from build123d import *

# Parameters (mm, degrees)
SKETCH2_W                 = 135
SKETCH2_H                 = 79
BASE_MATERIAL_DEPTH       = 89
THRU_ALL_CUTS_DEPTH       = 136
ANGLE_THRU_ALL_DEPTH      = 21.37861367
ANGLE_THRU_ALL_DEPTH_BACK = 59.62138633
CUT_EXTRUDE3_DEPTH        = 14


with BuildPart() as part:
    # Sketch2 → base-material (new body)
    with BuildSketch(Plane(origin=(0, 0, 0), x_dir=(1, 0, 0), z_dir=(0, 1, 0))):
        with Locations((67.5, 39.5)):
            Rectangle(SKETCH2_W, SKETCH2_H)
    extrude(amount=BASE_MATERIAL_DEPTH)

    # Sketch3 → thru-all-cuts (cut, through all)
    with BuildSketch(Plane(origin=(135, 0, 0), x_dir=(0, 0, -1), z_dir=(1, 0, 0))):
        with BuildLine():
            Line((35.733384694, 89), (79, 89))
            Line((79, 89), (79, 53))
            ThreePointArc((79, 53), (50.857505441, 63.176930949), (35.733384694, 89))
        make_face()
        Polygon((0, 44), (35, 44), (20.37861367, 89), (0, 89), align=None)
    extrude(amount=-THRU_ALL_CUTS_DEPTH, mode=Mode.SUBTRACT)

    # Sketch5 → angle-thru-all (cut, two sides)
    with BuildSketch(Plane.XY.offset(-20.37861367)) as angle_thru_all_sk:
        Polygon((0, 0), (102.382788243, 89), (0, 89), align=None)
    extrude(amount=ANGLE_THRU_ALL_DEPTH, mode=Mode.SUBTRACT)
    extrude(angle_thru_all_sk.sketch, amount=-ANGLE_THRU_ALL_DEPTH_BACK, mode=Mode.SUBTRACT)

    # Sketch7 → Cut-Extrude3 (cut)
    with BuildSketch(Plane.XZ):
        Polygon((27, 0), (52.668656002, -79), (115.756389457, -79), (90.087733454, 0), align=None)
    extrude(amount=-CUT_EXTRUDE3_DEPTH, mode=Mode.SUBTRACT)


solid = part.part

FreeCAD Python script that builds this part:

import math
import FreeCAD as App
import Part
import Sketcher
Q = App.Units.Quantity


def add_polygon(sketch, points):
    """Adds a closed chain of lines whose ends are joined by coincident constraints."""
    first, n = sketch.GeometryCount, len(points)
    for a, b in zip(points, points[1:] + points[:1]):
        sketch.addGeometry(Part.LineSegment(App.Vector(*a, 0), App.Vector(*b, 0)), False)
    for i in range(n):
        sketch.addConstraint(Sketcher.Constraint("Coincident", first + i, 2, first + (i + 1) % n, 1))

doc = App.newDocument("Part")
body = doc.addObject("PartDesign::Body", "Body")

# Sketch on XZ plane
sketch1 = body.newObject("Sketcher::SketchObject", "Sketch")
sketch1.AttachmentSupport = (doc.getObject("XZ_Plane"), [""])
sketch1.MapMode = "FlatFace"
add_polygon(sketch1, [(0, -79), (0, 0), (135, 0), (135, -79)])  # lines 0-3
sketch1.addConstraint([
    Sketcher.Constraint("Vertical", 0),
    Sketcher.Constraint("Horizontal", 1),
    Sketcher.Constraint("Vertical", 2),
    Sketcher.Constraint("Horizontal", 3),
    Sketcher.Constraint("Coincident", 0, 2, -1, 1),
    Sketcher.Constraint("DistanceX", 1, 1, 1, 2, Q("135 mm")),
    Sketcher.Constraint("DistanceY", 0, 1, 0, 2, Q("79 mm")),
])
pad1 = body.newObject("PartDesign::Pad", "Pad")
pad1.Profile = sketch1
pad1.Length = 89
pad1.Reversed = True

# Sketch on YZ plane
sketch2 = body.newObject("Sketcher::SketchObject", "Sketch001")
sketch2.AttachmentSupport = (doc.getObject("YZ_Plane"), [""])
sketch2.MapMode = "FlatFace"
sketch2.AttachmentOffset = App.Placement(App.Vector(0, 0, 135), App.Rotation())
sketch2.addGeometry(Part.LineSegment(App.Vector(89, -79, 0), App.Vector(89, -35.733385, 0)), False)  # 0
sketch2.addGeometry(Part.ArcOfCircle(Part.Circle(App.Vector(97, -79, 0), App.Vector(0, 0, 1), 44), math.radians(100.475682), math.radians(180)), False)  # 1
sketch2.addGeometry(Part.LineSegment(App.Vector(53, -79, 0), App.Vector(89, -79, 0)), False)  # 2
add_polygon(sketch2, [(44, 0), (44, -35), (89, -20.378614), (89, 0)])  # lines 3-6
sketch2.addConstraint([
    Sketcher.Constraint("Coincident", 0, 2, 1, 1),
    Sketcher.Constraint("Coincident", 1, 2, 2, 1),
    Sketcher.Constraint("Coincident", 2, 2, 0, 1),
    Sketcher.Constraint("Vertical", 0),
    Sketcher.Constraint("Horizontal", 2),
    Sketcher.Constraint("Vertical", 3),
    Sketcher.Constraint("Vertical", 5),
    Sketcher.Constraint("Horizontal", 6),
    Sketcher.Constraint("PointOnObject", 5, 2, -1),
    Sketcher.Constraint("Vertical", 2, 2, 4, 2),
    Sketcher.Constraint("Radius", 1, Q("44 mm")),
    Sketcher.Constraint("DistanceX", 2, 1, 2, 2, Q("36 mm")),
    Sketcher.Constraint("DistanceX", 6, 2, 6, 1, Q("45 mm")),
    Sketcher.Constraint("DistanceY", 3, 2, 3, 1, Q("35 mm")),
    Sketcher.Constraint("Angle", 4, Q("18 deg")),
    Sketcher.Constraint("DistanceX", -1, 1, 1, 3, Q("97 mm")),
    Sketcher.Constraint("DistanceY", 1, 3, -1, 1, Q("79 mm")),
    Sketcher.Constraint("DistanceY", 1, 2, -1, 1, Q("79 mm")),
])
pocket1 = body.newObject("PartDesign::Pocket", "Pocket")
pocket1.Profile = sketch2
pocket1.Type = "ThroughAll"

# Sketch on XY plane
sketch3 = body.newObject("Sketcher::SketchObject", "Sketch002")
sketch3.AttachmentSupport = (doc.getObject("XY_Plane"), [""])
sketch3.MapMode = "FlatFace"
sketch3.AttachmentOffset = App.Placement(App.Vector(0, 0, -20.378614), App.Rotation())
add_polygon(sketch3, [(0, 0), (102.382788, 89), (0, 89)])  # lines 0-2
sketch3.addConstraint([
    Sketcher.Constraint("Horizontal", 1),
    Sketcher.Constraint("Vertical", 2),
    Sketcher.Constraint("Coincident", 2, 2, -1, 1),
    Sketcher.Constraint("DistanceY", 2, 2, 2, 1, Q("89 mm")),
    Sketcher.Constraint("Angle", 0, Q("41 deg")),
])
pocket2 = body.newObject("PartDesign::Pocket", "Pocket001")
pocket2.Profile = sketch3
pocket2.Type = "ThroughAll"
pocket2.Midplane = True

# Sketch on XZ plane
sketch4 = body.newObject("Sketcher::SketchObject", "Sketch003")
sketch4.AttachmentSupport = (doc.getObject("XZ_Plane"), [""])
sketch4.MapMode = "FlatFace"
add_polygon(sketch4, [(27, 0), (52.668656, -79), (115.756389, -79), (90.087733, 0)])  # lines 0-3
sketch4.addConstraint([
    Sketcher.Constraint("Horizontal", 1),
    Sketcher.Constraint("Horizontal", 3),
    Sketcher.Constraint("PointOnObject", 2, 2, -1),
    Sketcher.Constraint("Parallel", 0, 2),
    Sketcher.Constraint("Angle", 0, Q("-72 deg")),
    Sketcher.Constraint("DistanceY", 0, 2, -1, 1, Q("79 mm")),
    Sketcher.Constraint("DistanceX", -1, 1, 3, 2, Q("27 mm")),
    Sketcher.Constraint("DistanceX", 1, 1, 1, 2, Q("63.087733 mm")),
])
pocket3 = body.newObject("PartDesign::Pocket", "Pocket002")
pocket3.Profile = sketch4
pocket3.Length = 14

doc.recompute()
